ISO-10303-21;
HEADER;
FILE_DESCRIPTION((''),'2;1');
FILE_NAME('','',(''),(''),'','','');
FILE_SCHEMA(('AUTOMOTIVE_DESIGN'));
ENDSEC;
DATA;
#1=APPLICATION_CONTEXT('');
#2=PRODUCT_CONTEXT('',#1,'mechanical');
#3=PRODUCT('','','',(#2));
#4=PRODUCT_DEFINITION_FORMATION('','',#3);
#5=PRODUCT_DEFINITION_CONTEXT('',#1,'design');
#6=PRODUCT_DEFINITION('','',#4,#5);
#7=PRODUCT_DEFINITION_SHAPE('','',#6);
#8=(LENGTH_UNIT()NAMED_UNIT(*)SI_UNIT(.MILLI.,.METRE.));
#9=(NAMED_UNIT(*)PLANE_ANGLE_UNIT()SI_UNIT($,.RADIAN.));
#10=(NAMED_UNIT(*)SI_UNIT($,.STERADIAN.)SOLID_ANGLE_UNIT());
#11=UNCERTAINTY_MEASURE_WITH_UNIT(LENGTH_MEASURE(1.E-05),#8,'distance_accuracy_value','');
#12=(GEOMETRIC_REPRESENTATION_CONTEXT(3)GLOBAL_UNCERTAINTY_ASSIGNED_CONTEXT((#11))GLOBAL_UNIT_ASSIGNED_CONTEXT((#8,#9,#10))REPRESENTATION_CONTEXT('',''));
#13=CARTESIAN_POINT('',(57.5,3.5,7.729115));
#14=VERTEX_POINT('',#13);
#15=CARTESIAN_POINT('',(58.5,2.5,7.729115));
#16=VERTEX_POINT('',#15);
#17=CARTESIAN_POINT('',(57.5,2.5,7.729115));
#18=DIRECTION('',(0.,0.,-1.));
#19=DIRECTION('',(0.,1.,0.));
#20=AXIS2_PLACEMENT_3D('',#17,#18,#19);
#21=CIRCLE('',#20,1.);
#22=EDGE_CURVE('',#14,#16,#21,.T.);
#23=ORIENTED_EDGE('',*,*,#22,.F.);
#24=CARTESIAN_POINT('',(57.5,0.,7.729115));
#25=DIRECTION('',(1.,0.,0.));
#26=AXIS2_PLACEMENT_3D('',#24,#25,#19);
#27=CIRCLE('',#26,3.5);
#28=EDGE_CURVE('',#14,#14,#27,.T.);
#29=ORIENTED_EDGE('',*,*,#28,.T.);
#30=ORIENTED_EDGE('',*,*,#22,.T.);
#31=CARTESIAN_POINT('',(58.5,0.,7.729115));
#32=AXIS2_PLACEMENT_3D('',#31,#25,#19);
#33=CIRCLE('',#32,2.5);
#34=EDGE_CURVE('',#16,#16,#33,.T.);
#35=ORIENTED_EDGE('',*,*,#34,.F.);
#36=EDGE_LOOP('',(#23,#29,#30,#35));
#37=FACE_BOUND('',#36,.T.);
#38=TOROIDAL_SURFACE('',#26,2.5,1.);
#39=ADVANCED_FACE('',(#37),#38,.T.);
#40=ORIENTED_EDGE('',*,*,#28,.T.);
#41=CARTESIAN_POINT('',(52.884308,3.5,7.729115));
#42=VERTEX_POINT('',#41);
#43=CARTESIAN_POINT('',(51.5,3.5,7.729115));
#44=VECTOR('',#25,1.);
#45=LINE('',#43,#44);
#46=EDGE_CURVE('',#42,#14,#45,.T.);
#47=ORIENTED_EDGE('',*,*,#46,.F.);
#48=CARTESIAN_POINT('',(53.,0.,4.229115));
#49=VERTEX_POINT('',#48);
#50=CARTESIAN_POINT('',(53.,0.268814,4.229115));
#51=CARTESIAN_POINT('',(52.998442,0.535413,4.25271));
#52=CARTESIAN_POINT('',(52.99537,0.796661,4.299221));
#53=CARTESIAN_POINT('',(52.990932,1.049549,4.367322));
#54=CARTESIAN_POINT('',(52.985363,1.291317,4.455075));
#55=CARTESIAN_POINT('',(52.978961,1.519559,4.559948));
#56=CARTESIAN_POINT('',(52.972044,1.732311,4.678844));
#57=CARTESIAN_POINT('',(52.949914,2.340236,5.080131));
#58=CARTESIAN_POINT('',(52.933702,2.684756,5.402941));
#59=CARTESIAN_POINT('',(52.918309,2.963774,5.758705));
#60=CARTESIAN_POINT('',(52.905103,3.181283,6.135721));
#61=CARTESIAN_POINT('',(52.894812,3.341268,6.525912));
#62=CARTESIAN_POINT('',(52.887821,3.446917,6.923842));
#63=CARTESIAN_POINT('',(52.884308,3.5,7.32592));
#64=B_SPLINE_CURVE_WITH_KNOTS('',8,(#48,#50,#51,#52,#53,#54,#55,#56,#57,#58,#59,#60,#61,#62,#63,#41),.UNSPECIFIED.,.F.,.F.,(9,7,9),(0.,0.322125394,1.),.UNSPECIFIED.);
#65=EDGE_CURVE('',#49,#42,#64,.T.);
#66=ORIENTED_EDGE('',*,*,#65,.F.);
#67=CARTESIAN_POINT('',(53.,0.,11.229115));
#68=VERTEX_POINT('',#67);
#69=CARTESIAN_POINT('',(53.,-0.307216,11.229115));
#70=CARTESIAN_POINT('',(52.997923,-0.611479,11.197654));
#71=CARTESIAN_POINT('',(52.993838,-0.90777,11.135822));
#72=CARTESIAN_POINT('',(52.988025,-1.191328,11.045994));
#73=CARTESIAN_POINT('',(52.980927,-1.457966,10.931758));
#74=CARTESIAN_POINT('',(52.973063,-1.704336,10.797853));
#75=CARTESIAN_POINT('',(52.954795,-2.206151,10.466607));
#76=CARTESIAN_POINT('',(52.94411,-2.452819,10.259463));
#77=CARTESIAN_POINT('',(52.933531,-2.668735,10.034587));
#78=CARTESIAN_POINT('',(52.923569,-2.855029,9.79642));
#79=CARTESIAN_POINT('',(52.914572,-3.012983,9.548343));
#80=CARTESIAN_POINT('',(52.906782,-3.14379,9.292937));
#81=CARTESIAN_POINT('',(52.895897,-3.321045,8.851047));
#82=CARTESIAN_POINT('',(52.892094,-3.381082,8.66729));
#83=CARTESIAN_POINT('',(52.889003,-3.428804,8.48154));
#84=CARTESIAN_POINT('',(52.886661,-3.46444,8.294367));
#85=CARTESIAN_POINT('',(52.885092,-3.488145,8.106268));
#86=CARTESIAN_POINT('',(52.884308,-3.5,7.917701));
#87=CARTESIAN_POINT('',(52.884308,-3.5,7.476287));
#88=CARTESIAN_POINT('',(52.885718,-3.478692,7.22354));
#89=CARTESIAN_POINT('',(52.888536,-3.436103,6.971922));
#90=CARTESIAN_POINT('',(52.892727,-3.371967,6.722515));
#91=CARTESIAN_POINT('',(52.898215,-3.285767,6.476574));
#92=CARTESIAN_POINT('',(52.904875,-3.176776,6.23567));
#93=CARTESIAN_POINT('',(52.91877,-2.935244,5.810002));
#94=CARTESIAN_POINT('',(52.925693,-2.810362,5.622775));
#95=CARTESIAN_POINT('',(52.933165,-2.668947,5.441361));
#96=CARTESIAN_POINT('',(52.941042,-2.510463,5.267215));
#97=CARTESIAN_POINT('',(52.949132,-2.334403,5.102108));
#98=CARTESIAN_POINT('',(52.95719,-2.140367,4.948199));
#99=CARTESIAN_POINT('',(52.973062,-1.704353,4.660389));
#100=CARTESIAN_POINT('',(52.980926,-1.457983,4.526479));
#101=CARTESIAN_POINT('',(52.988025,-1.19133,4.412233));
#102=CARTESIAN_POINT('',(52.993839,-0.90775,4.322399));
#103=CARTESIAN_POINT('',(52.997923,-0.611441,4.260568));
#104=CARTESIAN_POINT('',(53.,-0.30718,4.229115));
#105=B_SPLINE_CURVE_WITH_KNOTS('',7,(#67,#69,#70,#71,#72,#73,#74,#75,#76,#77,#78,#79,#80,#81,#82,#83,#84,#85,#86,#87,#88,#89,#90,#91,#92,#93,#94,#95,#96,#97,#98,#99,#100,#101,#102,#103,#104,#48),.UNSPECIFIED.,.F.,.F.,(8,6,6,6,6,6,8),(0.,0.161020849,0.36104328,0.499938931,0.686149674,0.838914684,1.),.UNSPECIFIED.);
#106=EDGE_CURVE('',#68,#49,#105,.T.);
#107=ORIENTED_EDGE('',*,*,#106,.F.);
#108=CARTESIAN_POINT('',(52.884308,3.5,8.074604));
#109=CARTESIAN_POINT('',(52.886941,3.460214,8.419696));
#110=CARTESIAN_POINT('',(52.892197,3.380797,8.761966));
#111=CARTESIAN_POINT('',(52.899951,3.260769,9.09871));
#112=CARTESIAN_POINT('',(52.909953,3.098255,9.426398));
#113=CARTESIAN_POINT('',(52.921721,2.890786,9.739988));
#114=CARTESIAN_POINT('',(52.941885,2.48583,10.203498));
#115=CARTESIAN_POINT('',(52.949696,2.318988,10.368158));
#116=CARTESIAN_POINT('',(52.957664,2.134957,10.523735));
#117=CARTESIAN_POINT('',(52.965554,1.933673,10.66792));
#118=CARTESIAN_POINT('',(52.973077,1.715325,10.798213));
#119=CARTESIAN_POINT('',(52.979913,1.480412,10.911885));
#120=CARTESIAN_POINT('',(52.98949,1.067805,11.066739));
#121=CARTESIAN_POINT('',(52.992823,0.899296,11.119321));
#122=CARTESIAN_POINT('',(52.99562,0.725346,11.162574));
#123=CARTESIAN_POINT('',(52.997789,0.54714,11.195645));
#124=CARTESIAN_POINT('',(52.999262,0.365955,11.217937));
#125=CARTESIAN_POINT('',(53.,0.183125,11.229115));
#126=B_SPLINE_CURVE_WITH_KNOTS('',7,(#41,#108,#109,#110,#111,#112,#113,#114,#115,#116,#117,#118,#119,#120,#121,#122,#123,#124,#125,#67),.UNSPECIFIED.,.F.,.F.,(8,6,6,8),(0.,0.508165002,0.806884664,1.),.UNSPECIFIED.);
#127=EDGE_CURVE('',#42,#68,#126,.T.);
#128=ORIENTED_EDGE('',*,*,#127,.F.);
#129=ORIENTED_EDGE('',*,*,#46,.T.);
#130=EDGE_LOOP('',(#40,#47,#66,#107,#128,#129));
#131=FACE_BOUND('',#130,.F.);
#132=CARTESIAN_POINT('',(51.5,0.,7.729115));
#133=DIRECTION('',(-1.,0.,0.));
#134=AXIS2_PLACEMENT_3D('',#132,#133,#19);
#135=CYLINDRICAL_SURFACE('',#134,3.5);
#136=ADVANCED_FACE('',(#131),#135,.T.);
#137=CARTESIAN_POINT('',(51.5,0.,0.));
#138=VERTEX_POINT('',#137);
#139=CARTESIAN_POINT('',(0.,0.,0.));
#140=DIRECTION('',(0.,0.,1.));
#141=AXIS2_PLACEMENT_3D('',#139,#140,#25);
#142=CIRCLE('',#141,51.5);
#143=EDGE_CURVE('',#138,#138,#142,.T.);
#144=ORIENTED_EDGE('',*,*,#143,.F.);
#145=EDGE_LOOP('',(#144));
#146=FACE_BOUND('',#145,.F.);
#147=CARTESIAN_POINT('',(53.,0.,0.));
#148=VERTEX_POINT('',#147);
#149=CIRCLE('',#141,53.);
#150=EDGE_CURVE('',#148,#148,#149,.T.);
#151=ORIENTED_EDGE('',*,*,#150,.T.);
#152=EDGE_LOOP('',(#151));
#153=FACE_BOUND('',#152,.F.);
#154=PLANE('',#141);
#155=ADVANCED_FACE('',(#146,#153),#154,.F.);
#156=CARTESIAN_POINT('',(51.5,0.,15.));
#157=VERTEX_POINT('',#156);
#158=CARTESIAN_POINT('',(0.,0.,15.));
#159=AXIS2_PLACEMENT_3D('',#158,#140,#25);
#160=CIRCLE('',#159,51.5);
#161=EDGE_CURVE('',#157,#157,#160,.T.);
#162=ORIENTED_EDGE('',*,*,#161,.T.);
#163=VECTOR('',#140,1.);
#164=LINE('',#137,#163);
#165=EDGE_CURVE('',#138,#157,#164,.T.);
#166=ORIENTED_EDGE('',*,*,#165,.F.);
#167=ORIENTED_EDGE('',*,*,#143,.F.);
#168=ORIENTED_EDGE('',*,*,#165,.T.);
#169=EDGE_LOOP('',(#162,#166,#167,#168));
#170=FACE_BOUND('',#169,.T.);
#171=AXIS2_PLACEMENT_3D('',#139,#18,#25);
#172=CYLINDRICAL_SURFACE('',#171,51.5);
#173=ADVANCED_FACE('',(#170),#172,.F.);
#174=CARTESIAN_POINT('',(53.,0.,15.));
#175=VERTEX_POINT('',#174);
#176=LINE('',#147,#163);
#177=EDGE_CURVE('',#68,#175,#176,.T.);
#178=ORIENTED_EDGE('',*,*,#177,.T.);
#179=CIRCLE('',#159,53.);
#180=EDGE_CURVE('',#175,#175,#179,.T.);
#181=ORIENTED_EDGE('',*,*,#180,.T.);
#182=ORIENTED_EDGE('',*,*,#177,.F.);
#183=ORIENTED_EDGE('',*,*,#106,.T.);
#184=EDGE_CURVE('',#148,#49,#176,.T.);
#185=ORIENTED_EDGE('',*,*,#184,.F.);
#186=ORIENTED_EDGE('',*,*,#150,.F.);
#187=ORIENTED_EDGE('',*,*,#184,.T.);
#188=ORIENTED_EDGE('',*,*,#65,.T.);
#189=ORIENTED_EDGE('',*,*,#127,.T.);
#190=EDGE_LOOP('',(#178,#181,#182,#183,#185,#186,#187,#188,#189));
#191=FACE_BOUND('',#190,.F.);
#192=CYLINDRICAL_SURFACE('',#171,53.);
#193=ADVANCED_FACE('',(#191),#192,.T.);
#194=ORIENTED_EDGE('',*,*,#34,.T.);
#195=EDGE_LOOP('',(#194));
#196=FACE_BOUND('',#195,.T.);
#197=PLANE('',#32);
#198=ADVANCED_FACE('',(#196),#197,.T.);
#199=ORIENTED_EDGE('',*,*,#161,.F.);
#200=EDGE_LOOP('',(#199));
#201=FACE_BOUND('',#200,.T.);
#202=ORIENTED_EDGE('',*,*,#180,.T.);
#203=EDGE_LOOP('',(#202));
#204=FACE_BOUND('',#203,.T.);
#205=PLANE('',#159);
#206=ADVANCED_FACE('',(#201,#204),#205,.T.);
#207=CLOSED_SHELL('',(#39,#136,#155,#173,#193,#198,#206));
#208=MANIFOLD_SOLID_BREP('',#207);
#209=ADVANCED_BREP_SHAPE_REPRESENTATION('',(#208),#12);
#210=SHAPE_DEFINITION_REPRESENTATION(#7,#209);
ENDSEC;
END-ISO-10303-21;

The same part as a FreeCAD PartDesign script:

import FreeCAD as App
import Part
import Sketcher

V = App.Vector


def edges_at(feature, points):
    """Names of the edges that pass closest to the given points."""
    edges = feature.Shape.Edges
    near = lambda p: min(range(len(edges)), key=lambda i: edges[i].distToShape(Part.Vertex(*p))[0])
    return sorted({f"Edge{near(p) + 1}" for p in points})

doc = App.newDocument("Part")
body = doc.addObject("PartDesign::Body", "Body")

# Sketch on XY plane
sketch1 = body.newObject("Sketcher::SketchObject", "Sketch")
sketch1.AttachmentSupport = (doc.getObject("XY_Plane"), [""])
sketch1.MapMode = "FlatFace"
sketch1.addGeometry([
    Part.Circle(V(0, 0, 0), V(0, 0, 1), 53),
    Part.Circle(V(0, 0, 0), V(0, 0, 1), 52),
], False)
sketch1.addConstraint([
    Sketcher.Constraint("Coincident", 0, 3, -1, 1),
    Sketcher.Constraint("Coincident", 1, 3, -1, 1),
    Sketcher.Constraint("Diameter", 0, 106.0),
    Sketcher.Constraint("Diameter", 1, 103.0),
])
pad1 = body.newObject("PartDesign::Pad", "Pad")
pad1.Profile = sketch1
pad1.Length = 15

# Sketch on YZ plane
sketch2 = body.newObject("Sketcher::SketchObject", "Sketch001")
sketch2.AttachmentSupport = (doc.getObject("YZ_Plane"), [""])
sketch2.MapMode = "FlatFace"
sketch2.AttachmentOffset = App.Placement(V(0, 0, 51.5), App.Rotation())
sketch2.addGeometry(Part.Circle(V(0, 7.7, 0), V(0, 0, 1), 3.5), False)
sketch2.addConstraint([
    Sketcher.Constraint("PointOnObject", 0, 3, -2),
    Sketcher.Constraint("Diameter", 0, 7.0),
    Sketcher.Constraint("DistanceY", -1, 1, 0, 3, 7.729115),
])
pad2 = body.newObject("PartDesign::Pad", "Pad001")
pad2.Profile = sketch2
pad2.Length = 7
doc.recompute()

fillet = body.newObject("PartDesign::Fillet", "Fillet")
fillet.Base = (pad2, edges_at(pad2, [(58.5, -3.5, 7.729)]))
fillet.Radius = 1

doc.recompute()
